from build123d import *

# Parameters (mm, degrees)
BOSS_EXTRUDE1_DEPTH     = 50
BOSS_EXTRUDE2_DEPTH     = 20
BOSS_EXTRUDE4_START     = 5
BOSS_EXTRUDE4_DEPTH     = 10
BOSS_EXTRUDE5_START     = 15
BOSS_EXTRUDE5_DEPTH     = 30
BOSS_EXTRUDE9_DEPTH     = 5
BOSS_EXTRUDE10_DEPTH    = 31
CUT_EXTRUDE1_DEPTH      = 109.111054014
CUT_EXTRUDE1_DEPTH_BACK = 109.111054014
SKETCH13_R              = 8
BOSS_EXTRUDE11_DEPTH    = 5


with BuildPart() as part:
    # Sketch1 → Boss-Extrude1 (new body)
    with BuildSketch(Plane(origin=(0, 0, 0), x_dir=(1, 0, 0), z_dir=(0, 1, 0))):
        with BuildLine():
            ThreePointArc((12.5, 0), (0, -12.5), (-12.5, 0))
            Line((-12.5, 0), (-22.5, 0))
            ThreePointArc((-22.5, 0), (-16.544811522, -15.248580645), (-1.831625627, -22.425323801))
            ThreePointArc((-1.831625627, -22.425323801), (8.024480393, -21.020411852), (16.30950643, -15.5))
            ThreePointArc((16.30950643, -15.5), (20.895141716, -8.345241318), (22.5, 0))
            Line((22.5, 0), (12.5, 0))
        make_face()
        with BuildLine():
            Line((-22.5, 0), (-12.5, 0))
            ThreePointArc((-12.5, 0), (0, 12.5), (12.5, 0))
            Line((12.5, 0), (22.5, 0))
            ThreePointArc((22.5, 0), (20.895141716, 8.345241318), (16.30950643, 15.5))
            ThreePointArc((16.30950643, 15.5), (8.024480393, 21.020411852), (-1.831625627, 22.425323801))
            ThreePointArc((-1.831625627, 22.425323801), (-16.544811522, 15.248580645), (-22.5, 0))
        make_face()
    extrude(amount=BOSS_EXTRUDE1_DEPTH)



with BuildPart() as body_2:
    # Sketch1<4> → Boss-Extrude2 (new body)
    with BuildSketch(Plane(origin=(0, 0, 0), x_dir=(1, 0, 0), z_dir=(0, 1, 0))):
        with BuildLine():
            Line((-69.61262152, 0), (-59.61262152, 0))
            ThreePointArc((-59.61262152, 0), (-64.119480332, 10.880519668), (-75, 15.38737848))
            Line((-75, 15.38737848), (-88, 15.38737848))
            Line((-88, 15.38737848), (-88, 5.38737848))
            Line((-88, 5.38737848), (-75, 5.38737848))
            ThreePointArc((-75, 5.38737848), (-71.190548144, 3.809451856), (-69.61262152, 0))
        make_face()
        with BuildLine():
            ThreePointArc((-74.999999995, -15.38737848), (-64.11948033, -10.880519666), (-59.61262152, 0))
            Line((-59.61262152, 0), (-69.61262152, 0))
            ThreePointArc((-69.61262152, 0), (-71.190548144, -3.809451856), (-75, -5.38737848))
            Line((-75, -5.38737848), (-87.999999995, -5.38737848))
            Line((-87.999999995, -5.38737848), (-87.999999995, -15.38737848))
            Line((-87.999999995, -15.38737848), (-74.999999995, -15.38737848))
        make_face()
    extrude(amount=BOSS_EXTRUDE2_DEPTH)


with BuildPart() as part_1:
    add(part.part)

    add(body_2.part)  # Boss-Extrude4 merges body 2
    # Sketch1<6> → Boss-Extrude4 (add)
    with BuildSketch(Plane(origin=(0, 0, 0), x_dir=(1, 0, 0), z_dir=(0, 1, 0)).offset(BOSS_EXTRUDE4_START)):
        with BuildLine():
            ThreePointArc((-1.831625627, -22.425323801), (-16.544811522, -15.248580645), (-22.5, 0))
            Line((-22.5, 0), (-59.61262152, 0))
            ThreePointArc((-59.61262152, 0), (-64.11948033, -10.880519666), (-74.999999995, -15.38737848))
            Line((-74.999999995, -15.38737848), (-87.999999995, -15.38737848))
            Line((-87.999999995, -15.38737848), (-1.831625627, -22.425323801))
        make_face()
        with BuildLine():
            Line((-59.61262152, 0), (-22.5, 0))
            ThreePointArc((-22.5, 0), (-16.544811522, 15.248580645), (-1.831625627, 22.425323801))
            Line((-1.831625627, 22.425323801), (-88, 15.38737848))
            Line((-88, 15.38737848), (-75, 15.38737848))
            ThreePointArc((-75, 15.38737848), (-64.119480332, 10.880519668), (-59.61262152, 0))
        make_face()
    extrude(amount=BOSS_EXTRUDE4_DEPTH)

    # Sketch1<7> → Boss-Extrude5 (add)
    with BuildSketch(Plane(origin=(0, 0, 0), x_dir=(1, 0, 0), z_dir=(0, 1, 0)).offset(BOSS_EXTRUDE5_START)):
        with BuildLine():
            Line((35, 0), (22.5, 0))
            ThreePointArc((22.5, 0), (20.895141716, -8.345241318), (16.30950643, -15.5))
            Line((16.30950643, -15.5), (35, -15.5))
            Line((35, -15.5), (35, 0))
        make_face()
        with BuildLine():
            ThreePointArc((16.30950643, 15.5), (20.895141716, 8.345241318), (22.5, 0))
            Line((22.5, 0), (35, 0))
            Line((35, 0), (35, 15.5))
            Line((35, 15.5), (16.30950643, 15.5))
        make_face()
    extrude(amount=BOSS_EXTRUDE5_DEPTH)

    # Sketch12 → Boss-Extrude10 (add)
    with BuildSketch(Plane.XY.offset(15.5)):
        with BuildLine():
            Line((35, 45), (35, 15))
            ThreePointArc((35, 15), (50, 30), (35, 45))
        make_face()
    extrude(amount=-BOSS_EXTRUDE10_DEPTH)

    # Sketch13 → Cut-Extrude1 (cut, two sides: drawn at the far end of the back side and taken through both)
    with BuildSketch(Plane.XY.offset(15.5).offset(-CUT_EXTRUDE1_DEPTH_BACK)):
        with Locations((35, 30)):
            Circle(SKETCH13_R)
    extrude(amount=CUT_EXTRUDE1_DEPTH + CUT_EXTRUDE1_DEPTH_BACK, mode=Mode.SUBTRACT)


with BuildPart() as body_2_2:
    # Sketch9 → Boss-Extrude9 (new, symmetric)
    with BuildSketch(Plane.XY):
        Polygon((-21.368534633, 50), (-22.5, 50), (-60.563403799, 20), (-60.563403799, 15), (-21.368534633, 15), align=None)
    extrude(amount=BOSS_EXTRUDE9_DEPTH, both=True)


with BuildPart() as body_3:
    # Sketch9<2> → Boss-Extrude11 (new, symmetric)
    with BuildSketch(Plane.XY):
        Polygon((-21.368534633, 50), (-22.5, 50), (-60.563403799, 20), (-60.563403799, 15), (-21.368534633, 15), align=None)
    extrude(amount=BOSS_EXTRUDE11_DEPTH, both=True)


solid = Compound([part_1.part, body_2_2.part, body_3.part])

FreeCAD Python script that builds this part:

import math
import FreeCAD as App
import Part
import Sketcher
Q = App.Units.Quantity


def add_polygon(sketch, points):
    """Adds a closed chain of lines whose ends are joined by coincident constraints."""
    first, n = sketch.GeometryCount, len(points)
    for a, b in zip(points, points[1:] + points[:1]):
        sketch.addGeometry(Part.LineSegment(App.Vector(*a, 0), App.Vector(*b, 0)), False)
    for i in range(n):
        sketch.addConstraint(Sketcher.Constraint("Coincident", first + i, 2, first + (i + 1) % n, 1))

doc = App.newDocument("Part")
params = doc.addObject("Spreadsheet::Sheet", "Params")
for row, (alias, value) in enumerate([
    ("sketch1_diameter", "25 mm"),
    ("sketch1_radius", "22.5 mm"),
    ("pad1_length", "50 mm"),
    ("sketch2_width", "13 mm"),
    ("sketch2_height", "10 mm"),
    ("pad2_length", "20 mm"),
    ("sketch3_radius", "22.5 mm"),
    ("sketch3_width", "13 mm"),
    ("pad3_length", "10 mm"),
    ("sketch4_radius", "22.5 mm"),
    ("sketch4_height", "31 mm"),
    ("pad4_length", "30 mm"),
    ("sketch5_radius", "15 mm"),
    ("pad5_length", "31 mm"),
    ("sketch6_diameter", "16 mm"),
    ("sketch7_height", "5 mm"),
    ("sketch7_height2", "35 mm"),
    ("pad6_length", "10 mm"),
    ("sketch8_height", "5 mm"),
    ("sketch8_height2", "35 mm"),
    ("pad7_length", "10 mm"),
], start=1):
    params.set(f"A{row}", alias)
    params.set(f"B{row}", "=" + value)
    params.setAlias(f"B{row}", alias)

body = doc.addObject("PartDesign::Body", "Body")

sketch1 = doc.addObject("Sketcher::SketchObject", "Sketch")
body.addObject(sketch1)
sketch1.AttachmentSupport = (doc.XZ_Plane, [""])
sketch1.MapMode = "FlatFace"
sketch1.addGeometry([
    Part.ArcOfCircle(Part.Circle(App.Vector(0, 0, 0), App.Vector(0, 0, 1), 22), math.radians(-95), math.radians(-44)),
    Part.ArcOfCircle(Part.Circle(App.Vector(0, 0, 0), App.Vector(0, 0, 1), 23), math.radians(-180), math.radians(-95)),
    Part.ArcOfCircle(Part.Circle(App.Vector(0, 0, 0), App.Vector(0, 0, 1), 23), math.radians(95), math.radians(180)),
    Part.ArcOfCircle(Part.Circle(App.Vector(0, 0, 0), App.Vector(0, 0, 1), 22), math.radians(44), math.radians(95)),
    Part.ArcOfCircle(Part.Circle(App.Vector(0, 0, 0), App.Vector(0, 0, 1), 23), math.radians(0), math.radians(44)),
    Part.ArcOfCircle(Part.Circle(App.Vector(0, 0, 0), App.Vector(0, 0, 1), 23), math.radians(-44), math.radians(0)),
    Part.Circle(App.Vector(0, 0, 0), App.Vector(0, 0, 1), 12),
], False)
sketch1.addConstraint([
    Sketcher.Constraint("Tangent", 0, 1, 1, 2),
    Sketcher.Constraint("Tangent", 1, 1, 2, 2),
    Sketcher.Constraint("Tangent", 2, 1, 3, 2),
    Sketcher.Constraint("Tangent", 3, 1, 4, 2),
    Sketcher.Constraint("Tangent", 4, 1, 5, 2),
    Sketcher.Constraint("Tangent", 5, 1, 0, 2),
    Sketcher.Constraint("Coincident", 0, 3, -1, 1),
    Sketcher.Constraint("Coincident", 2, 3, -1, 1),
    Sketcher.Constraint("Coincident", 6, 3, -1, 1),
    Sketcher.Constraint("Equal", 2, 3),
    Sketcher.Constraint("PointOnObject", 1, 1, -1),
    Sketcher.Constraint("PointOnObject", 4, 1, -1),
    Sketcher.Constraint("Vertical", 0, 1, 2, 1),
    Sketcher.Constraint("Vertical", 3, 1, 5, 1),
    Sketcher.Constraint("Diameter", 6, Q("25 mm")),
    Sketcher.Constraint("Radius", 0, Q("22.5 mm")),
    Sketcher.Constraint("DistanceY", -1, 1, 3, 1, Q("15.5 mm")),
    Sketcher.Constraint("DistanceX", 0, 1, -1, 1, Q("1.831626 mm")),
])
sketch1.setExpression("Constraints[14]", "Params.sketch1_diameter")
sketch1.setExpression("Constraints[15]", "Params.sketch1_radius")
pad1 = doc.addObject("PartDesign::Pad", "Pad")
body.addObject(pad1)
pad1.Profile = sketch1
pad1.setExpression("Length", "Params.pad1_length")
pad1.Reversed = True
body2 = doc.addObject("PartDesign::Body", "Body001")

sketch2 = doc.addObject("Sketcher::SketchObject", "Sketch001")
body2.addObject(sketch2)
sketch2.AttachmentSupport = (doc.getObject("XZ_Plane001"), [""])
sketch2.MapMode = "FlatFace"
sketch2.addGeometry([
    Part.ArcOfCircle(Part.Circle(App.Vector(-75, 0, 0), App.Vector(0, 0, 1), 15), math.radians(-90), math.radians(0)),
    Part.LineSegment(App.Vector(-75, -15, 0), App.Vector(-88, -15, 0)),
    Part.LineSegment(App.Vector(-88, -15, 0), App.Vector(-88, -5, 0)),
    Part.LineSegment(App.Vector(-88, -5, 0), App.Vector(-75, -5, 0)),
    Part.ArcOfCircle(Part.Circle(App.Vector(-75, 0, 0), App.Vector(0, 0, 1), 5), math.radians(-90), math.radians(0)),
    Part.ArcOfCircle(Part.Circle(App.Vector(-75, 0, 0), App.Vector(0, 0, 1), 5), math.radians(0), math.radians(90)),
    Part.LineSegment(App.Vector(-75, 5, 0), App.Vector(-88, 5, 0)),
    Part.LineSegment(App.Vector(-88, 5, 0), App.Vector(-88, 15, 0)),
    Part.LineSegment(App.Vector(-88, 15, 0), App.Vector(-75, 15, 0)),
    Part.ArcOfCircle(Part.Circle(App.Vector(-75, 0, 0), App.Vector(0, 0, 1), 15), math.radians(0), math.radians(90)),
], False)
sketch2.addConstraint([
    Sketcher.Constraint("Tangent", 0, 1, 1, 1),
    Sketcher.Constraint("Coincident", 1, 2, 2, 1),
    Sketcher.Constraint("Coincident", 2, 2, 3, 1),
    Sketcher.Constraint("Tangent", 3, 2, 4, 1),
    Sketcher.Constraint("Tangent", 4, 2, 5, 1),
    Sketcher.Constraint("Tangent", 5, 2, 6, 1),
    Sketcher.Constraint("Coincident", 6, 2, 7, 1),
    Sketcher.Constraint("Coincident", 7, 2, 8, 1),
    Sketcher.Constraint("Tangent", 8, 2, 9, 2),
    Sketcher.Constraint("Tangent", 9, 1, 0, 2),
    Sketcher.Constraint("Horizontal", 1),
    Sketcher.Constraint("Vertical", 2),
    Sketcher.Constraint("Horizontal", 3),
    Sketcher.Constraint("Horizontal", 6),
    Sketcher.Constraint("Vertical", 7),
    Sketcher.Constraint("Horizontal", 8),
    Sketcher.Constraint("Coincident", 4, 3, 0, 3),
    Sketcher.Constraint("Equal", 4, 5),
    Sketcher.Constraint("Equal", 0, 9),
    Sketcher.Constraint("Symmetric", 2, 2, 6, 2, -1),
    Sketcher.Constraint("PointOnObject", 4, 2, -1),
    Sketcher.Constraint("PointOnObject", 9, 1, -1),
    Sketcher.Constraint("DistanceX", 1, 2, 1, 1, Q("13 mm")),
    Sketcher.Constraint("DistanceY", 2, 1, 2, 2, Q("10 mm")),
    Sketcher.Constraint("DistanceX", 0, 3, -1, 1, Q("75 mm")),
    Sketcher.Constraint("Radius", 0, Q("15.387378 mm")),
])
sketch2.setExpression("Constraints[22]", "Params.sketch2_width")
sketch2.setExpression("Constraints[23]", "Params.sketch2_height")
pad2 = doc.addObject("PartDesign::Pad", "Pad001")
body2.addObject(pad2)
pad2.Profile = sketch2
pad2.setExpression("Length", "Params.pad2_length")
pad2.Reversed = True
body.AllowCompound = True
doc.recompute()

boolean = doc.addObject("PartDesign::Boolean", "Boolean")
body.addObject(boolean)
boolean.Type = "Fuse"
boolean.addObjects([body2])

sketch3 = doc.addObject("Sketcher::SketchObject", "Sketch002")
body.addObject(sketch3)
sketch3.AttachmentSupport = (doc.XZ_Plane, [""])
sketch3.MapMode = "FlatFace"
sketch3.AttachmentOffset = App.Placement(App.Vector(0, 0, -5), App.Rotation())
sketch3.addGeometry([
    Part.ArcOfCircle(Part.Circle(App.Vector(0, 0, 0), App.Vector(0, 0, 1), 23), math.radians(95), math.radians(180)),
    Part.ArcOfCircle(Part.Circle(App.Vector(0, 0, 0), App.Vector(0, 0, 1), 23), math.radians(-180), math.radians(-95)),
    Part.LineSegment(App.Vector(-2, -22, 0), App.Vector(-88, -15, 0)),
    Part.LineSegment(App.Vector(-88, -15, 0), App.Vector(-75, -15, 0)),
    Part.ArcOfCircle(Part.Circle(App.Vector(-75, 0, 0), App.Vector(0, 0, 1), 15), math.radians(-90), math.radians(0)),
    Part.ArcOfCircle(Part.Circle(App.Vector(-75, 0, 0), App.Vector(0, 0, 1), 15), math.radians(0), math.radians(90)),
    Part.LineSegment(App.Vector(-75, 15, 0), App.Vector(-88, 15, 0)),
    Part.LineSegment(App.Vector(-88, 15, 0), App.Vector(-2, 22, 0)),
], False)
sketch3.addConstraint([
    Sketcher.Constraint("Tangent", 0, 2, 1, 1),
    Sketcher.Constraint("Tangent", 1, 2, 2, 1),
    Sketcher.Constraint("Coincident", 2, 2, 3, 1),
    Sketcher.Constraint("Tangent", 3, 2, 4, 1),
    Sketcher.Constraint("Tangent", 4, 2, 5, 1),
    Sketcher.Constraint("Tangent", 5, 2, 6, 1),
    Sketcher.Constraint("Coincident", 6, 2, 7, 1),
    Sketcher.Constraint("Tangent", 7, 2, 0, 1),
    Sketcher.Constraint("Horizontal", 3),
    Sketcher.Constraint("Horizontal", 6),
    Sketcher.Constraint("Coincident", 0, 3, -1, 1),
    Sketcher.Constraint("Equal", 0, 1),
    Sketcher.Constraint("Equal", 4, 5),
    Sketcher.Constraint("Symmetric", 2, 2, 6, 2, -1),
    Sketcher.Constraint("PointOnObject", 0, 2, -1),
    Sketcher.Constraint("PointOnObject", 4, 2, -1),
    Sketcher.Constraint("Radius", 0, Q("22.5 mm")),
    Sketcher.Constraint("DistanceX", 3, 1, 3, 2, Q("13 mm")),
    Sketcher.Constraint("DistanceX", 4, 3, -1, 1, Q("75 mm")),
    Sketcher.Constraint("Radius", 4, Q("15.387378 mm")),
])
sketch3.setExpression("Constraints[16]", "Params.sketch3_radius")
sketch3.setExpression("Constraints[17]", "Params.sketch3_width")
pad3 = doc.addObject("PartDesign::Pad", "Pad002")
body.addObject(pad3)
pad3.Profile = sketch3
pad3.setExpression("Length", "Params.pad3_length")
pad3.Reversed = True

sketch4 = doc.addObject("Sketcher::SketchObject", "Sketch003")
body.addObject(sketch4)
sketch4.AttachmentSupport = (doc.XZ_Plane, [""])
sketch4.MapMode = "FlatFace"
sketch4.AttachmentOffset = App.Placement(App.Vector(0, 0, -15), App.Rotation())
sketch4.addGeometry([
    Part.ArcOfCircle(Part.Circle(App.Vector(0, 0, 0), App.Vector(0, 0, 1), 23), math.radians(0), math.radians(44)),
    Part.LineSegment(App.Vector(16, 16, 0), App.Vector(35, 16, 0)),
    Part.LineSegment(App.Vector(35, 16, 0), App.Vector(35, -16, 0)),
    Part.LineSegment(App.Vector(35, -16, 0), App.Vector(16, -16, 0)),
    Part.ArcOfCircle(Part.Circle(App.Vector(0, 0, 0), App.Vector(0, 0, 1), 23), math.radians(-44), math.radians(0)),
], False)
sketch4.addConstraint([
    Sketcher.Constraint("Coincident", 0, 2, 1, 1),
    Sketcher.Constraint("Coincident", 1, 2, 2, 1),
    Sketcher.Constraint("Coincident", 2, 2, 3, 1),
    Sketcher.Constraint("Coincident", 3, 2, 4, 1),
    Sketcher.Constraint("Tangent", 4, 2, 0, 1),
    Sketcher.Constraint("Horizontal", 1),
    Sketcher.Constraint("Vertical", 2),
    Sketcher.Constraint("Horizontal", 3),
    Sketcher.Constraint("Coincident", 0, 3, -1, 1),
    Sketcher.Constraint("Equal", 0, 4),
    Sketcher.Constraint("PointOnObject", 4, 2, -1),
    Sketcher.Constraint("Vertical", 0, 2, 3, 2),
    Sketcher.Constraint("Radius", 0, Q("22.5 mm")),
    Sketcher.Constraint("DistanceY", 2, 2, 2, 1, Q("31 mm")),
    Sketcher.Constraint("DistanceX", -1, 1, 1, 2, Q("35 mm")),
])
sketch4.setExpression("Constraints[12]", "Params.sketch4_radius")
sketch4.setExpression("Constraints[13]", "Params.sketch4_height")
pad4 = doc.addObject("PartDesign::Pad", "Pad003")
body.addObject(pad4)
pad4.Profile = sketch4
pad4.setExpression("Length", "Params.pad4_length")
pad4.Reversed = True

sketch5 = doc.addObject("Sketcher::SketchObject", "Sketch004")
body.addObject(sketch5)
sketch5.AttachmentSupport = (doc.XY_Plane, [""])
sketch5.MapMode = "FlatFace"
sketch5.AttachmentOffset = App.Placement(App.Vector(0, 0, 15.5), App.Rotation())
sketch5.addGeometry([
    Part.LineSegment(App.Vector(35, 45, 0), App.Vector(35, 15, 0)),
    Part.ArcOfCircle(Part.Circle(App.Vector(35, 30, 0), App.Vector(0, 0, 1), 15), math.radians(-90), math.radians(90)),
], False)
sketch5.addConstraint([
    Sketcher.Constraint("Coincident", 0, 1, 1, 2),
    Sketcher.Constraint("Coincident", 1, 1, 0, 2),
    Sketcher.Constraint("Vertical", 0),
    Sketcher.Constraint("Vertical", 1, 3, 0, 1),
    Sketcher.Constraint("Radius", 1, Q("15 mm")),
    Sketcher.Constraint("DistanceX", -1, 1, 1, 3, Q("35 mm")),
    Sketcher.Constraint("DistanceY", -1, 1, 1, 3, Q("30 mm")),
])
sketch5.setExpression("Constraints[4]", "Params.sketch5_radius")
pad5 = doc.addObject("PartDesign::Pad", "Pad004")
body.addObject(pad5)
pad5.Profile = sketch5
pad5.setExpression("Length", "Params.pad5_length")
pad5.Reversed = True

sketch6 = doc.addObject("Sketcher::SketchObject", "Sketch005")
body.addObject(sketch6)
sketch6.AttachmentSupport = (doc.XY_Plane, [""])
sketch6.MapMode = "FlatFace"
sketch6.AttachmentOffset = App.Placement(App.Vector(0, 0, 15.5), App.Rotation())
sketch6.addGeometry(Part.Circle(App.Vector(35, 30, 0), App.Vector(0, 0, 1), 8), False)
sketch6.addConstraint([
    Sketcher.Constraint("Diameter", 0, Q("16 mm")),
    Sketcher.Constraint("DistanceX", -1, 1, 0, 3, Q("35 mm")),
    Sketcher.Constraint("DistanceY", -1, 1, 0, 3, Q("30 mm")),
])
sketch6.setExpression("Constraints[0]", "Params.sketch6_diameter")
pocket1 = doc.addObject("PartDesign::Pocket", "Pocket")
body.addObject(pocket1)
pocket1.Profile = sketch6
pocket1.Type = "ThroughAll"
pocket1.Midplane = True
body3 = doc.addObject("PartDesign::Body", "Body002")

sketch7 = doc.addObject("Sketcher::SketchObject", "Sketch006")
body3.addObject(sketch7)
sketch7.AttachmentSupport = (doc.getObject("XY_Plane002"), [""])
sketch7.MapMode = "FlatFace"
add_polygon(sketch7, [(-21.4, 50), (-22.5, 50), (-60.6, 20), (-60.6, 15), (-21.4, 15)])
sketch7.addConstraint([
    Sketcher.Constraint("Horizontal", 0),
    Sketcher.Constraint("Vertical", 2),
    Sketcher.Constraint("Horizontal", 3),
    Sketcher.Constraint("Vertical", 4),
    Sketcher.Constraint("DistanceY", 2, 2, 2, 1, Q("5 mm")),
    Sketcher.Constraint("DistanceY", 4, 1, 4, 2, Q("35 mm")),
    Sketcher.Constraint("DistanceY", -1, 1, 0, 2, Q("50 mm")),
    Sketcher.Constraint("DistanceX", 0, 2, -1, 1, Q("22.5 mm")),
    Sketcher.Constraint("DistanceX", 3, 1, 3, 2, Q("39.194869 mm")),
    Sketcher.Constraint("DistanceX", 0, 2, 0, 1, Q("1.131465 mm")),
])
sketch7.setExpression("Constraints[9]", "Params.sketch7_height")
sketch7.setExpression("Constraints[10]", "Params.sketch7_height2")
pad6 = doc.addObject("PartDesign::Pad", "Pad005")
body3.addObject(pad6)
pad6.Profile = sketch7
pad6.setExpression("Length", "Params.pad6_length")
pad6.Midplane = True
body4 = doc.addObject("PartDesign::Body", "Body003")

sketch8 = doc.addObject("Sketcher::SketchObject", "Sketch007")
body4.addObject(sketch8)
sketch8.AttachmentSupport = (doc.getObject("XY_Plane003"), [""])
sketch8.MapMode = "FlatFace"
add_polygon(sketch8, [(-21.4, 50), (-22.5, 50), (-60.6, 20), (-60.6, 15), (-21.4, 15)])
sketch8.addConstraint([
    Sketcher.Constraint("Horizontal", 0),
    Sketcher.Constraint("Vertical", 2),
    Sketcher.Constraint("Horizontal", 3),
    Sketcher.Constraint("Vertical", 4),
    Sketcher.Constraint("DistanceY", 2, 2, 2, 1, Q("5 mm")),
    Sketcher.Constraint("DistanceY", 4, 1, 4, 2, Q("35 mm")),
    Sketcher.Constraint("DistanceY", -1, 1, 0, 2, Q("50 mm")),
    Sketcher.Constraint("DistanceX", 0, 2, -1, 1, Q("22.5 mm")),
    Sketcher.Constraint("DistanceX", 3, 1, 3, 2, Q("39.194869 mm")),
    Sketcher.Constraint("DistanceX", 0, 2, 0, 1, Q("1.131465 mm")),
])
sketch8.setExpression("Constraints[9]", "Params.sketch8_height")
sketch8.setExpression("Constraints[10]", "Params.sketch8_height2")
pad7 = doc.addObject("PartDesign::Pad", "Pad006")
body4.addObject(pad7)
pad7.Profile = sketch8
pad7.setExpression("Length", "Params.pad7_length")
pad7.Midplane = True

doc.recompute()
